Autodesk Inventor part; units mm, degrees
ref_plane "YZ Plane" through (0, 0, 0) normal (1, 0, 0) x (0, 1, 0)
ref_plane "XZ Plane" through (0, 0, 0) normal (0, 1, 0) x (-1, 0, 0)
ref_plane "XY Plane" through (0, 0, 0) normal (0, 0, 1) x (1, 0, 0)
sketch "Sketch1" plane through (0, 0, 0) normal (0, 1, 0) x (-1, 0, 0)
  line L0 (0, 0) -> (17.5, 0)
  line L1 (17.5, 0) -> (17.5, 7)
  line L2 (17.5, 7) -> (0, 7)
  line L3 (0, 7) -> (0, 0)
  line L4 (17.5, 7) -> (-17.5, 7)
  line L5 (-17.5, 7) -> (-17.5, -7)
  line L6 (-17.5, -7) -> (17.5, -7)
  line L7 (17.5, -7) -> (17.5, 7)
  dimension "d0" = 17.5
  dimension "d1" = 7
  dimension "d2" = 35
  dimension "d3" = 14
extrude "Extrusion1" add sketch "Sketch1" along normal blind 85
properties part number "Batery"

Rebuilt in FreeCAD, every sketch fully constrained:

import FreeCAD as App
import Part
import Sketcher
from FreeCAD import Vector

doc = App.newDocument("Part")
params = doc.addObject("Spreadsheet::Sheet", "Params")
for row, (alias, value) in enumerate([
    ("sketch1_width", "35 mm"),
    ("sketch1_height", "14 mm"),
    ("pad1_length", "85 mm"),
], start=1):
    params.set(f"A{row}", alias)
    params.set(f"B{row}", "=" + value)
    params.setAlias(f"B{row}", alias)

body = doc.addObject("PartDesign::Body", "Body")

sketch1 = body.newObject("Sketcher::SketchObject", "Sketch")
sketch1.AttachmentSupport = (doc.getObject("XZ_Plane"), [""])
sketch1.MapMode = "FlatFace"
sketch1.addGeometry([
    Part.LineSegment(Vector(-17.5, 7, 0), Vector(17.5, 7, 0)),
    Part.LineSegment(Vector(17.5, 7, 0), Vector(17.5, -7, 0)),
    Part.LineSegment(Vector(17.5, -7, 0), Vector(-17.5, -7, 0)),
    Part.LineSegment(Vector(-17.5, -7, 0), Vector(-17.5, 7, 0)),
], False)
sketch1.addConstraint([
    Sketcher.Constraint("Coincident", 0, 2, 1, 1),
    Sketcher.Constraint("Coincident", 1, 2, 2, 1),
    Sketcher.Constraint("Coincident", 2, 2, 3, 1),
    Sketcher.Constraint("Coincident", 3, 2, 0, 1),
    Sketcher.Constraint("Horizontal", 0),
    Sketcher.Constraint("Vertical", 1),
    Sketcher.Constraint("Horizontal", 2),
    Sketcher.Constraint("Vertical", 3),
    Sketcher.Constraint("Symmetric", 0, 2, 2, 2, -1, 1),
    Sketcher.Constraint("DistanceX", 0, 1, 0, 2, 35.0),
    Sketcher.Constraint("DistanceY", 1, 2, 1, 1, 14.0),
])
sketch1.setExpression("Constraints[9]", "Params.sketch1_width")
sketch1.setExpression("Constraints[10]", "Params.sketch1_height")
pad1 = body.newObject("PartDesign::Pad", "Pad")
pad1.Profile = sketch1
pad1.setExpression("Length", "Params.pad1_length")
pad1.Reversed = True

doc.recompute()
